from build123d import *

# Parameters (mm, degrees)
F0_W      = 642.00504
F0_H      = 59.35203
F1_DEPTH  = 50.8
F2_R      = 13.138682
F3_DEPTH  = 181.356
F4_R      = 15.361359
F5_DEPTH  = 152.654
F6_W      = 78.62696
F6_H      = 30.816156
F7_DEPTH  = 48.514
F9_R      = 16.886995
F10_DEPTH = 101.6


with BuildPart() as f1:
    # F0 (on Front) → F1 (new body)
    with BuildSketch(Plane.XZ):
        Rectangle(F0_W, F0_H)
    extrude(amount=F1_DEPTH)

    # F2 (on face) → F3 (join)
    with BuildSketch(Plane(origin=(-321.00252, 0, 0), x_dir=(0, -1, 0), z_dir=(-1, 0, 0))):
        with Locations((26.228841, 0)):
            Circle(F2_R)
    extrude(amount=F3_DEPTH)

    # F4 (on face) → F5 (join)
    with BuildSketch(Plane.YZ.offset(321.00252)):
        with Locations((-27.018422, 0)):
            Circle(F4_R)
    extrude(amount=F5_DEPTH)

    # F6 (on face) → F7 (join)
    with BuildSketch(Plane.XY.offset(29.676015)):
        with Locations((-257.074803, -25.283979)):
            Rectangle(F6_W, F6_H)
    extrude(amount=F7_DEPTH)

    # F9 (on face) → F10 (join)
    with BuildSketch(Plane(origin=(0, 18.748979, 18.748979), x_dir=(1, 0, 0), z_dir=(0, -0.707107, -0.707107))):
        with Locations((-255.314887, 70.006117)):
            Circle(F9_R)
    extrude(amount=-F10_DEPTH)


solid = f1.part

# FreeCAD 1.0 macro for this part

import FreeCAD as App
import Part
import Sketcher

V = App.Vector
Q = App.Units.Quantity

doc = App.newDocument("Part")
body = doc.addObject("PartDesign::Body", "Body")

sketch1 = body.newObject("Sketcher::SketchObject", "Sketch")
sketch1.AttachmentSupport = (doc.getObject("XZ_Plane"), [""])
sketch1.MapMode = "FlatFace"
sketch1.addGeometry(Part.LineSegment(V(-321.00252, 29.676015, 0), V(-321.00252, -29.676015, 0)), False)
sketch1.addGeometry(Part.LineSegment(V(-321.00252, -29.676015, 0), V(321.00252, -29.676015, 0)), False)
sketch1.addGeometry(Part.LineSegment(V(321.00252, -29.676015, 0), V(321.00252, 29.676015, 0)), False)
sketch1.addGeometry(Part.LineSegment(V(321.00252, 29.676015, 0), V(-321.00252, 29.676015, 0)), False)
sketch1.addConstraint(Sketcher.Constraint("Coincident", 0, 2, 1, 1))
sketch1.addConstraint(Sketcher.Constraint("Coincident", 1, 2, 2, 1))
sketch1.addConstraint(Sketcher.Constraint("Coincident", 2, 2, 3, 1))
sketch1.addConstraint(Sketcher.Constraint("Coincident", 3, 2, 0, 1))
sketch1.addConstraint(Sketcher.Constraint("Vertical", 0))
sketch1.addConstraint(Sketcher.Constraint("Horizontal", 1))
sketch1.addConstraint(Sketcher.Constraint("Vertical", 2))
sketch1.addConstraint(Sketcher.Constraint("Horizontal", 3))
sketch1.addConstraint(Sketcher.Constraint("Symmetric", 0, 2, 2, 2, -1, 1))
sketch1.addConstraint(Sketcher.Constraint("DistanceX", 1, 1, 1, 2, Q("642.00504 mm")))
sketch1.addConstraint(Sketcher.Constraint("DistanceY", 0, 2, 0, 1, Q("59.35203 mm")))
pad1 = body.newObject("PartDesign::Pad", "Pad")
pad1.Profile = sketch1
pad1.Length = Q("2 in")

sketch2 = body.newObject("Sketcher::SketchObject", "Sketch001")
sketch2.AttachmentSupport = (doc.getObject("YZ_Plane"), [""])
sketch2.MapMode = "FlatFace"
sketch2.AttachmentOffset = App.Placement(V(0, 0, -321.00252), App.Rotation())
sketch2.addGeometry(Part.Circle(V(-26.228841, 0, 0), V(0, 0, 1), 13.138682), False)
sketch2.addConstraint(Sketcher.Constraint("PointOnObject", 0, 3, -1))
sketch2.addConstraint(Sketcher.Constraint("Diameter", 0, Q("26.277364 mm")))
sketch2.addConstraint(Sketcher.Constraint("DistanceX", 0, 3, -1, 1, Q("26.228841 mm")))
pad2 = body.newObject("PartDesign::Pad", "Pad001")
pad2.Profile = sketch2
pad2.Length = Q("7.14 in")
pad2.Reversed = True

sketch3 = body.newObject("Sketcher::SketchObject", "Sketch002")
sketch3.AttachmentSupport = (doc.getObject("YZ_Plane"), [""])
sketch3.MapMode = "FlatFace"
sketch3.AttachmentOffset = App.Placement(V(0, 0, 321.00252), App.Rotation())
sketch3.addGeometry(Part.Circle(V(-27.018422, 0, 0), V(0, 0, 1), 15.361359), False)
sketch3.addConstraint(Sketcher.Constraint("PointOnObject", 0, 3, -1))
sketch3.addConstraint(Sketcher.Constraint("Diameter", 0, Q("30.722718 mm")))
sketch3.addConstraint(Sketcher.Constraint("DistanceX", 0, 3, -1, 1, Q("27.018422 mm")))
pad3 = body.newObject("PartDesign::Pad", "Pad002")
pad3.Profile = sketch3
pad3.Length = Q("6.01 in")

sketch4 = body.newObject("Sketcher::SketchObject", "Sketch003")
sketch4.AttachmentSupport = (doc.getObject("XY_Plane"), [""])
sketch4.MapMode = "FlatFace"
sketch4.AttachmentOffset = App.Placement(V(0, 0, 29.676015), App.Rotation())
sketch4.addGeometry(Part.LineSegment(V(-296.388283, -9.875901, 0), V(-296.388283, -40.692057, 0)), False)
sketch4.addGeometry(Part.LineSegment(V(-296.388283, -40.692057, 0), V(-217.761323, -40.692057, 0)), False)
sketch4.addGeometry(Part.LineSegment(V(-217.761323, -40.692057, 0), V(-217.761323, -9.875901, 0)), False)
sketch4.addGeometry(Part.LineSegment(V(-217.761323, -9.875901, 0), V(-296.388283, -9.875901, 0)), False)
sketch4.addConstraint(Sketcher.Constraint("Coincident", 0, 2, 1, 1))
sketch4.addConstraint(Sketcher.Constraint("Coincident", 1, 2, 2, 1))
sketch4.addConstraint(Sketcher.Constraint("Coincident", 2, 2, 3, 1))
sketch4.addConstraint(Sketcher.Constraint("Coincident", 3, 2, 0, 1))
sketch4.addConstraint(Sketcher.Constraint("Vertical", 0))
sketch4.addConstraint(Sketcher.Constraint("Horizontal", 1))
sketch4.addConstraint(Sketcher.Constraint("Vertical", 2))
sketch4.addConstraint(Sketcher.Constraint("Horizontal", 3))
sketch4.addConstraint(Sketcher.Constraint("DistanceX", 1, 1, 1, 2, Q("78.62696 mm")))
sketch4.addConstraint(Sketcher.Constraint("DistanceY", 2, 2, -1, 1, Q("9.875901 mm")))
sketch4.addConstraint(Sketcher.Constraint("DistanceY", 0, 2, 0, 1, Q("30.816156 mm")))
sketch4.addConstraint(Sketcher.Constraint("DistanceX", 0, 2, -1, 1, Q("296.388283 mm")))
pad4 = body.newObject("PartDesign::Pad", "Pad003")
pad4.Profile = sketch4
pad4.Length = Q("1.91 in")

sketch5 = body.newObject("Sketcher::SketchObject", "Sketch004")
sketch5.Placement = App.Placement(V(0, 18.748979, 18.748979), App.Rotation(V(1, 0, 0), V(0, -0.707106781, 0.707106781), V(0, -0.707106781, -0.707106781), "ZXY"))
sketch5.addGeometry(Part.Circle(V(-255.314887, 70.006117, 0), V(0, 0, 1), 16.886995), False)
sketch5.addConstraint(Sketcher.Constraint("Diameter", 0, Q("33.77399 mm")))
sketch5.addConstraint(Sketcher.Constraint("DistanceX", 0, 3, -1, 1, Q("255.314887 mm")))
sketch5.addConstraint(Sketcher.Constraint("DistanceY", -1, 1, 0, 3, Q("70.006117 mm")))
pad5 = body.newObject("PartDesign::Pad", "Pad004")
pad5.Profile = sketch5
pad5.Length = Q("4 in")
pad5.Reversed = True

doc.recompute()
